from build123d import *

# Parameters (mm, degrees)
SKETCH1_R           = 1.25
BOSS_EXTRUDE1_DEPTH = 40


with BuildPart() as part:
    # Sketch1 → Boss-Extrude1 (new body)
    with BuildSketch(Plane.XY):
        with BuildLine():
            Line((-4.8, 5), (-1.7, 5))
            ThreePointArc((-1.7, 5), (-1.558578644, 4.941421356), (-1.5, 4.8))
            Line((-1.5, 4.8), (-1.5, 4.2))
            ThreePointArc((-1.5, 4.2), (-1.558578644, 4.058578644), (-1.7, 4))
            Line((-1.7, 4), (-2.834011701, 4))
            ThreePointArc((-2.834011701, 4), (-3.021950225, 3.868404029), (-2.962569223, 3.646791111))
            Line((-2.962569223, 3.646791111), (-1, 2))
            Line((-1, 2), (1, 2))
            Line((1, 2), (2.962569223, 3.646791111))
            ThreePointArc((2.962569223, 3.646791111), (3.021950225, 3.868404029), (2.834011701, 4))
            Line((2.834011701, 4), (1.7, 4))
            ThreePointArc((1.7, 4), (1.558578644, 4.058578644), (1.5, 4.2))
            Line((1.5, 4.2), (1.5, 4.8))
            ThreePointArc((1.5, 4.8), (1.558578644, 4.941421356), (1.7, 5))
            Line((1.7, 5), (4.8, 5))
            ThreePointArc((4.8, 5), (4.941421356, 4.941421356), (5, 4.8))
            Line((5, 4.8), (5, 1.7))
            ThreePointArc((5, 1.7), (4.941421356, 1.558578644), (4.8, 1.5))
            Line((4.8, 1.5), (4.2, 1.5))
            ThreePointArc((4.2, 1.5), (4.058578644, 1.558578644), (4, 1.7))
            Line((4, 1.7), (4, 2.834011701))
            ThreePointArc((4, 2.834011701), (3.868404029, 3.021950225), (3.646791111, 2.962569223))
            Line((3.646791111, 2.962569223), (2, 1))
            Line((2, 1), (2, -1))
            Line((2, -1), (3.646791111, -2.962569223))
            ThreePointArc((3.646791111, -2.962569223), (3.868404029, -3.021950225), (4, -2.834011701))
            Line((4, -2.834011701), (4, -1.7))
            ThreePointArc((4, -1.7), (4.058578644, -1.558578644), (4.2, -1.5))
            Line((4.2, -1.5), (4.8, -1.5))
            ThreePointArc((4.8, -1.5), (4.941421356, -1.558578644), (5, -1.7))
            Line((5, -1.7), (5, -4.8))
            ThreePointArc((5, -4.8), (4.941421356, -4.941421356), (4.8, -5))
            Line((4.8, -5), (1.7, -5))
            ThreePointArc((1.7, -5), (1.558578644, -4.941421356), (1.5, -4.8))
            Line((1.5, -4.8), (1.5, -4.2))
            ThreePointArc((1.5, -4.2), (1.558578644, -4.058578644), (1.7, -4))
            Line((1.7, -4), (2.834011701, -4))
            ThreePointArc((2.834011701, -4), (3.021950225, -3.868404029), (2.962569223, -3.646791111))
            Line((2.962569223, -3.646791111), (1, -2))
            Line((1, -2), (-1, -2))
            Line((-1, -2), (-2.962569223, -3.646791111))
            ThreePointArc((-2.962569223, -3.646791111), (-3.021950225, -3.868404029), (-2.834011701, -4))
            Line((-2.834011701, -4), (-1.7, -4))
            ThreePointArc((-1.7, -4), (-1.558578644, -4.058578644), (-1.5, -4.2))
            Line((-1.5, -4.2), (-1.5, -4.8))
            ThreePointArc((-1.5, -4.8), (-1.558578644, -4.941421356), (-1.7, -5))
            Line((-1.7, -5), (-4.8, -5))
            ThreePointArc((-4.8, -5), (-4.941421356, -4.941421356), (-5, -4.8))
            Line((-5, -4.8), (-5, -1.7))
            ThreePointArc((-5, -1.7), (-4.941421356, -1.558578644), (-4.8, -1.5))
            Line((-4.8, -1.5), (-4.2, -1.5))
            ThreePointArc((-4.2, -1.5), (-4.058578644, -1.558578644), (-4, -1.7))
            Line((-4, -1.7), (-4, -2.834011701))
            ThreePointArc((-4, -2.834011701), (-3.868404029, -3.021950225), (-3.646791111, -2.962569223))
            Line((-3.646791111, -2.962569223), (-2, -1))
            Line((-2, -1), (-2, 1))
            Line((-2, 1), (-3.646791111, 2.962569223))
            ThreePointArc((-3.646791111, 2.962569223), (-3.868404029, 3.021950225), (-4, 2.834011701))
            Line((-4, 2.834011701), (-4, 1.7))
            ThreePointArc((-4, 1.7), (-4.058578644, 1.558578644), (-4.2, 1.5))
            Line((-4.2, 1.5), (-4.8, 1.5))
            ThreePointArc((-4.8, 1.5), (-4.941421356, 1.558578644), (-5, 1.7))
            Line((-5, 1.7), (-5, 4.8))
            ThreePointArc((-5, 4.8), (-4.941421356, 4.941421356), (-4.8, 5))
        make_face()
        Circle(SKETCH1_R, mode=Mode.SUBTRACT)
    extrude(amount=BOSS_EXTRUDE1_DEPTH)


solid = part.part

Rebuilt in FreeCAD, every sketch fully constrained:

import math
import FreeCAD as App
import Part
import Sketcher
from FreeCAD import Vector
Q = App.Units.Quantity

doc = App.newDocument("Part")
body = doc.addObject("PartDesign::Body", "Body")

# Sketch on XY plane
sketch1 = body.newObject("Sketcher::SketchObject", "Sketch")
sketch1.AttachmentSupport = (doc.getObject("XY_Plane"), [""])
sketch1.MapMode = "FlatFace"
sketch1.addGeometry([
    Part.LineSegment(Vector(-1.7, 5, 0), Vector(-4.8, 5, 0)),  # 0
    Part.ArcOfCircle(Part.Circle(Vector(-4.8, 4.8, 0), Vector(0, 0, 1), 0.2), math.radians(90), math.radians(180)),  # 1
    Part.LineSegment(Vector(-5, 4.8, 0), Vector(-5, 1.7, 0)),  # 2
    Part.ArcOfCircle(Part.Circle(Vector(-4.8, 1.7, 0), Vector(0, 0, 1), 0.2), math.radians(-180), math.radians(-90)),  # 3
    Part.LineSegment(Vector(-4.8, 1.5, 0), Vector(-4.2, 1.5, 0)),  # 4
    Part.ArcOfCircle(Part.Circle(Vector(-4.2, 1.7, 0), Vector(0, 0, 1), 0.2), math.radians(-90), math.radians(0)),  # 5
    Part.LineSegment(Vector(-4, 1.7, 0), Vector(-4, 2.83, 0)),  # 6
    Part.ArcOfCircle(Part.Circle(Vector(-3.8, 2.83, 0), Vector(0, 0, 1), 0.2), math.radians(40), math.radians(180)),  # 7
    Part.LineSegment(Vector(-3.65, 2.96, 0), Vector(-2, 1, 0)),  # 8
    Part.LineSegment(Vector(-2, 1, 0), Vector(-2, -1, 0)),  # 9
    Part.LineSegment(Vector(-2, -1, 0), Vector(-3.65, -2.96, 0)),  # 10
    Part.ArcOfCircle(Part.Circle(Vector(-3.8, -2.83, 0), Vector(0, 0, 1), 0.2), math.radians(180), math.radians(320)),  # 11
    Part.LineSegment(Vector(-4, -2.83, 0), Vector(-4, -1.7, 0)),  # 12
    Part.ArcOfCircle(Part.Circle(Vector(-4.2, -1.7, 0), Vector(0, 0, 1), 0.2), math.radians(0), math.radians(90)),  # 13
    Part.LineSegment(Vector(-4.2, -1.5, 0), Vector(-4.8, -1.5, 0)),  # 14
    Part.ArcOfCircle(Part.Circle(Vector(-4.8, -1.7, 0), Vector(0, 0, 1), 0.2), math.radians(90), math.radians(180)),  # 15
    Part.LineSegment(Vector(-5, -1.7, 0), Vector(-5, -4.8, 0)),  # 16
    Part.ArcOfCircle(Part.Circle(Vector(-4.8, -4.8, 0), Vector(0, 0, 1), 0.2), math.radians(-180), math.radians(-90)),  # 17
    Part.LineSegment(Vector(-4.8, -5, 0), Vector(-1.7, -5, 0)),  # 18
    Part.ArcOfCircle(Part.Circle(Vector(-1.7, -4.8, 0), Vector(0, 0, 1), 0.2), math.radians(-90), math.radians(0)),  # 19
    Part.LineSegment(Vector(-1.5, -4.8, 0), Vector(-1.5, -4.2, 0)),  # 20
    Part.ArcOfCircle(Part.Circle(Vector(-1.7, -4.2, 0), Vector(0, 0, 1), 0.2), math.radians(0), math.radians(90)),  # 21
    Part.LineSegment(Vector(-1.7, -4, 0), Vector(-2.83, -4, 0)),  # 22
    Part.ArcOfCircle(Part.Circle(Vector(-2.83, -3.8, 0), Vector(0, 0, 1), 0.2), math.radians(130), math.radians(270)),  # 23
    Part.LineSegment(Vector(-2.96, -3.65, 0), Vector(-1, -2, 0)),  # 24
    Part.LineSegment(Vector(-1, -2, 0), Vector(1, -2, 0)),  # 25
    Part.LineSegment(Vector(1, -2, 0), Vector(2.96, -3.65, 0)),  # 26
    Part.ArcOfCircle(Part.Circle(Vector(2.83, -3.8, 0), Vector(0, 0, 1), 0.2), math.radians(-90), math.radians(50)),  # 27
    Part.LineSegment(Vector(2.83, -4, 0), Vector(1.7, -4, 0)),  # 28
    Part.ArcOfCircle(Part.Circle(Vector(1.7, -4.2, 0), Vector(0, 0, 1), 0.2), math.radians(90), math.radians(180)),  # 29
    Part.LineSegment(Vector(1.5, -4.2, 0), Vector(1.5, -4.8, 0)),  # 30
    Part.ArcOfCircle(Part.Circle(Vector(1.7, -4.8, 0), Vector(0, 0, 1), 0.2), math.radians(-180), math.radians(-90)),  # 31
    Part.LineSegment(Vector(1.7, -5, 0), Vector(4.8, -5, 0)),  # 32
    Part.ArcOfCircle(Part.Circle(Vector(4.8, -4.8, 0), Vector(0, 0, 1), 0.2), math.radians(-90), math.radians(0)),  # 33
    Part.LineSegment(Vector(5, -4.8, 0), Vector(5, -1.7, 0)),  # 34
    Part.ArcOfCircle(Part.Circle(Vector(4.8, -1.7, 0), Vector(0, 0, 1), 0.2), math.radians(0), math.radians(90)),  # 35
    Part.LineSegment(Vector(4.8, -1.5, 0), Vector(4.2, -1.5, 0)),  # 36
    Part.ArcOfCircle(Part.Circle(Vector(4.2, -1.7, 0), Vector(0, 0, 1), 0.2), math.radians(90), math.radians(180)),  # 37
    Part.LineSegment(Vector(4, -1.7, 0), Vector(4, -2.83, 0)),  # 38
    Part.ArcOfCircle(Part.Circle(Vector(3.8, -2.83, 0), Vector(0, 0, 1), 0.2), math.radians(-140), math.radians(0)),  # 39
    Part.LineSegment(Vector(3.65, -2.96, 0), Vector(2, -1, 0)),  # 40
    Part.LineSegment(Vector(2, -1, 0), Vector(2, 1, 0)),  # 41
    Part.LineSegment(Vector(2, 1, 0), Vector(3.65, 2.96, 0)),  # 42
    Part.ArcOfCircle(Part.Circle(Vector(3.8, 2.83, 0), Vector(0, 0, 1), 0.2), math.radians(0), math.radians(140)),  # 43
    Part.LineSegment(Vector(4, 2.83, 0), Vector(4, 1.7, 0)),  # 44
    Part.ArcOfCircle(Part.Circle(Vector(4.2, 1.7, 0), Vector(0, 0, 1), 0.2), math.radians(-180), math.radians(-90)),  # 45
    Part.LineSegment(Vector(4.2, 1.5, 0), Vector(4.8, 1.5, 0)),  # 46
    Part.ArcOfCircle(Part.Circle(Vector(4.8, 1.7, 0), Vector(0, 0, 1), 0.2), math.radians(-90), math.radians(0)),  # 47
    Part.LineSegment(Vector(5, 1.7, 0), Vector(5, 4.8, 0)),  # 48
    Part.ArcOfCircle(Part.Circle(Vector(4.8, 4.8, 0), Vector(0, 0, 1), 0.2), math.radians(0), math.radians(90)),  # 49
    Part.LineSegment(Vector(4.8, 5, 0), Vector(1.7, 5, 0)),  # 50
    Part.ArcOfCircle(Part.Circle(Vector(1.7, 4.8, 0), Vector(0, 0, 1), 0.2), math.radians(90), math.radians(180)),  # 51
    Part.LineSegment(Vector(1.5, 4.8, 0), Vector(1.5, 4.2, 0)),  # 52
    Part.ArcOfCircle(Part.Circle(Vector(1.7, 4.2, 0), Vector(0, 0, 1), 0.2), math.radians(-180), math.radians(-90)),  # 53
    Part.LineSegment(Vector(1.7, 4, 0), Vector(2.83, 4, 0)),  # 54
    Part.ArcOfCircle(Part.Circle(Vector(2.83, 3.8, 0), Vector(0, 0, 1), 0.2), math.radians(-50), math.radians(90)),  # 55
    Part.LineSegment(Vector(2.96, 3.65, 0), Vector(1, 2, 0)),  # 56
    Part.LineSegment(Vector(1, 2, 0), Vector(-1, 2, 0)),  # 57
    Part.LineSegment(Vector(-1, 2, 0), Vector(-2.96, 3.65, 0)),  # 58
    Part.ArcOfCircle(Part.Circle(Vector(-2.83, 3.8, 0), Vector(0, 0, 1), 0.2), math.radians(90), math.radians(230)),  # 59
    Part.LineSegment(Vector(-2.83, 4, 0), Vector(-1.7, 4, 0)),  # 60
    Part.ArcOfCircle(Part.Circle(Vector(-1.7, 4.2, 0), Vector(0, 0, 1), 0.2), math.radians(-90), math.radians(0)),  # 61
    Part.LineSegment(Vector(-1.5, 4.2, 0), Vector(-1.5, 4.8, 0)),  # 62
    Part.ArcOfCircle(Part.Circle(Vector(-1.7, 4.8, 0), Vector(0, 0, 1), 0.2), math.radians(0), math.radians(90)),  # 63
    Part.Circle(Vector(0, 0, 0), Vector(0, 0, 1), 1.25),  # 64
], False)
sketch1.addConstraint([
    Sketcher.Constraint("Tangent", 0, 2, 1, 1),
    Sketcher.Constraint("Tangent", 1, 2, 2, 1),
    Sketcher.Constraint("Tangent", 2, 2, 3, 1),
    Sketcher.Constraint("Tangent", 3, 2, 4, 1),
    Sketcher.Constraint("Tangent", 4, 2, 5, 1),
    Sketcher.Constraint("Tangent", 5, 2, 6, 1),
    Sketcher.Constraint("Tangent", 6, 2, 7, 2),
    Sketcher.Constraint("Tangent", 7, 1, 8, 1),
    Sketcher.Constraint("Coincident", 8, 2, 9, 1),
    Sketcher.Constraint("Coincident", 9, 2, 10, 1),
    Sketcher.Constraint("Tangent", 10, 2, 11, 2),
    Sketcher.Constraint("Tangent", 11, 1, 12, 1),
    Sketcher.Constraint("Tangent", 12, 2, 13, 1),
    Sketcher.Constraint("Tangent", 13, 2, 14, 1),
    Sketcher.Constraint("Tangent", 14, 2, 15, 1),
    Sketcher.Constraint("Tangent", 15, 2, 16, 1),
    Sketcher.Constraint("Tangent", 16, 2, 17, 1),
    Sketcher.Constraint("Tangent", 17, 2, 18, 1),
    Sketcher.Constraint("Tangent", 18, 2, 19, 1),
    Sketcher.Constraint("Tangent", 19, 2, 20, 1),
    Sketcher.Constraint("Tangent", 20, 2, 21, 1),
    Sketcher.Constraint("Tangent", 21, 2, 22, 1),
    Sketcher.Constraint("Tangent", 22, 2, 23, 2),
    Sketcher.Constraint("Tangent", 23, 1, 24, 1),
    Sketcher.Constraint("Coincident", 24, 2, 25, 1),
    Sketcher.Constraint("Coincident", 25, 2, 26, 1),
    Sketcher.Constraint("Tangent", 26, 2, 27, 2),
    Sketcher.Constraint("Tangent", 27, 1, 28, 1),
    Sketcher.Constraint("Tangent", 28, 2, 29, 1),
    Sketcher.Constraint("Tangent", 29, 2, 30, 1),
    Sketcher.Constraint("Tangent", 30, 2, 31, 1),
    Sketcher.Constraint("Tangent", 31, 2, 32, 1),
    Sketcher.Constraint("Tangent", 32, 2, 33, 1),
    Sketcher.Constraint("Tangent", 33, 2, 34, 1),
    Sketcher.Constraint("Tangent", 34, 2, 35, 1),
    Sketcher.Constraint("Tangent", 35, 2, 36, 1),
    Sketcher.Constraint("Tangent", 36, 2, 37, 1),
    Sketcher.Constraint("Tangent", 37, 2, 38, 1),
    Sketcher.Constraint("Tangent", 38, 2, 39, 2),
    Sketcher.Constraint("Tangent", 39, 1, 40, 1),
    Sketcher.Constraint("Coincident", 40, 2, 41, 1),
    Sketcher.Constraint("Coincident", 41, 2, 42, 1),
    Sketcher.Constraint("Tangent", 42, 2, 43, 2),
    Sketcher.Constraint("Tangent", 43, 1, 44, 1),
    Sketcher.Constraint("Tangent", 44, 2, 45, 1),
    Sketcher.Constraint("Tangent", 45, 2, 46, 1),
    Sketcher.Constraint("Tangent", 46, 2, 47, 1),
    Sketcher.Constraint("Tangent", 47, 2, 48, 1),
    Sketcher.Constraint("Tangent", 48, 2, 49, 1),
    Sketcher.Constraint("Tangent", 49, 2, 50, 1),
    Sketcher.Constraint("Tangent", 50, 2, 51, 1),
    Sketcher.Constraint("Tangent", 51, 2, 52, 1),
    Sketcher.Constraint("Tangent", 52, 2, 53, 1),
    Sketcher.Constraint("Tangent", 53, 2, 54, 1),
    Sketcher.Constraint("Tangent", 54, 2, 55, 2),
    Sketcher.Constraint("Tangent", 55, 1, 56, 1),
    Sketcher.Constraint("Coincident", 56, 2, 57, 1),
    Sketcher.Constraint("Coincident", 57, 2, 58, 1),
    Sketcher.Constraint("Tangent", 58, 2, 59, 2),
    Sketcher.Constraint("Tangent", 59, 1, 60, 1),
    Sketcher.Constraint("Tangent", 60, 2, 61, 1),
    Sketcher.Constraint("Tangent", 61, 2, 62, 1),
    Sketcher.Constraint("Tangent", 62, 2, 63, 1),
    Sketcher.Constraint("Tangent", 63, 2, 0, 1),
    Sketcher.Constraint("Horizontal", 0),
    Sketcher.Constraint("Vertical", 2),
    Sketcher.Constraint("Horizontal", 4),
    Sketcher.Constraint("Vertical", 6),
    Sketcher.Constraint("Vertical", 9),
    Sketcher.Constraint("Vertical", 12),
    Sketcher.Constraint("Horizontal", 14),
    Sketcher.Constraint("Vertical", 16),
    Sketcher.Constraint("Horizontal", 18),
    Sketcher.Constraint("Vertical", 20),
    Sketcher.Constraint("Horizontal", 22),
    Sketcher.Constraint("Horizontal", 25),
    Sketcher.Constraint("Horizontal", 28),
    Sketcher.Constraint("Vertical", 30),
    Sketcher.Constraint("Horizontal", 32),
    Sketcher.Constraint("Vertical", 34),
    Sketcher.Constraint("Horizontal", 36),
    Sketcher.Constraint("Vertical", 38),
    Sketcher.Constraint("Vertical", 41),
    Sketcher.Constraint("Vertical", 44),
    Sketcher.Constraint("Horizontal", 46),
    Sketcher.Constraint("Vertical", 48),
    Sketcher.Constraint("Horizontal", 50),
    Sketcher.Constraint("Vertical", 52),
    Sketcher.Constraint("Horizontal", 54),
    Sketcher.Constraint("Horizontal", 57),
    Sketcher.Constraint("Horizontal", 60),
    Sketcher.Constraint("Vertical", 62),
    Sketcher.Constraint("Coincident", 64, 3, -1, 1),
    Sketcher.Constraint("Equal", 1, 3),
    Sketcher.Constraint("Equal", 3, 5),
    Sketcher.Constraint("Equal", 5, 7),
    Sketcher.Constraint("Equal", 7, 11),
    Sketcher.Constraint("Equal", 11, 13),
    Sketcher.Constraint("Equal", 13, 15),
    Sketcher.Constraint("Equal", 15, 17),
    Sketcher.Constraint("Equal", 17, 19),
    Sketcher.Constraint("Equal", 19, 21),
    Sketcher.Constraint("Equal", 21, 23),
    Sketcher.Constraint("Equal", 23, 27),
    Sketcher.Constraint("Equal", 27, 29),
    Sketcher.Constraint("Equal", 29, 31),
    Sketcher.Constraint("Equal", 31, 33),
    Sketcher.Constraint("Equal", 33, 35),
    Sketcher.Constraint("Equal", 35, 37),
    Sketcher.Constraint("Equal", 37, 39),
    Sketcher.Constraint("Equal", 39, 43),
    Sketcher.Constraint("Equal", 43, 45),
    Sketcher.Constraint("Equal", 45, 47),
    Sketcher.Constraint("Equal", 47, 49),
    Sketcher.Constraint("Equal", 49, 51),
    Sketcher.Constraint("Equal", 51, 53),
    Sketcher.Constraint("Equal", 53, 55),
    Sketcher.Constraint("Equal", 55, 59),
    Sketcher.Constraint("Equal", 59, 61),
    Sketcher.Constraint("Equal", 61, 63),
    Sketcher.Constraint("Symmetric", 1, 3, 33, 3, -1, 1),
    Sketcher.Constraint("Symmetric", 5, 3, 37, 3, -1, 1),
    Sketcher.Constraint("Symmetric", 11, 3, 43, 3, -1, 1),
    Sketcher.Constraint("Symmetric", 15, 3, 47, 3, -1, 1),
    Sketcher.Constraint("Symmetric", 19, 3, 51, 3, -1, 1),
    Sketcher.Constraint("Symmetric", 23, 3, 55, 3, -1, 1),
    Sketcher.Constraint("Symmetric", 27, 3, 59, 3, -1, 1),
    Sketcher.Constraint("Symmetric", 7, 1, 39, 1, -1, 1),
    Sketcher.Constraint("Symmetric", 9, 2, 41, 2, -1, 1),
    Sketcher.Constraint("Symmetric", 24, 2, 56, 2, -1, 1),
    Sketcher.Constraint("Symmetric", 23, 3, 27, 3, -2),
    Sketcher.Constraint("Symmetric", 19, 3, 31, 3, -2),
    Sketcher.Constraint("Symmetric", 15, 3, 35, 3, -2),
    Sketcher.Constraint("Symmetric", 11, 3, 39, 3, -2),
    Sketcher.Constraint("Perpendicular", 8, 24),
    Sketcher.Constraint("Perpendicular", 10, 26),
    Sketcher.Constraint("Perpendicular", 42, 58),
    Sketcher.Constraint("Horizontal", 23, 1, 26, 2),
    Sketcher.Constraint("Vertical", 21, 3, 61, 3),
    Sketcher.Constraint("Equal", 50, 2),
    Sketcher.Constraint("Equal", 60, 6),
    Sketcher.Constraint("Equal", 57, 9),
    Sketcher.Constraint("Equal", 46, 20),
    Sketcher.Constraint("Equal", 10, 24),
    Sketcher.Constraint("Diameter", 64, 2.5),
    Sketcher.Constraint("Radius", 1, 0.2),
    Sketcher.Constraint("DistanceX", 25, 1, 25, 2, 2.0),
    Sketcher.Constraint("Angle", 8, Q("-50 deg")),
    Sketcher.Constraint("DistanceX", 0, 2, 0, 1, 3.1),
    Sketcher.Constraint("DistanceX", 4, 1, 4, 2, 0.6),
    Sketcher.Constraint("DistanceY", -1, 1, 0, 2, 5.0),
    Sketcher.Constraint("DistanceX", 8, 2, -1, 1, 2.0),
])
pad1 = body.newObject("PartDesign::Pad", "Pad")
pad1.Profile = sketch1
pad1.Length = 40

doc.recompute()
